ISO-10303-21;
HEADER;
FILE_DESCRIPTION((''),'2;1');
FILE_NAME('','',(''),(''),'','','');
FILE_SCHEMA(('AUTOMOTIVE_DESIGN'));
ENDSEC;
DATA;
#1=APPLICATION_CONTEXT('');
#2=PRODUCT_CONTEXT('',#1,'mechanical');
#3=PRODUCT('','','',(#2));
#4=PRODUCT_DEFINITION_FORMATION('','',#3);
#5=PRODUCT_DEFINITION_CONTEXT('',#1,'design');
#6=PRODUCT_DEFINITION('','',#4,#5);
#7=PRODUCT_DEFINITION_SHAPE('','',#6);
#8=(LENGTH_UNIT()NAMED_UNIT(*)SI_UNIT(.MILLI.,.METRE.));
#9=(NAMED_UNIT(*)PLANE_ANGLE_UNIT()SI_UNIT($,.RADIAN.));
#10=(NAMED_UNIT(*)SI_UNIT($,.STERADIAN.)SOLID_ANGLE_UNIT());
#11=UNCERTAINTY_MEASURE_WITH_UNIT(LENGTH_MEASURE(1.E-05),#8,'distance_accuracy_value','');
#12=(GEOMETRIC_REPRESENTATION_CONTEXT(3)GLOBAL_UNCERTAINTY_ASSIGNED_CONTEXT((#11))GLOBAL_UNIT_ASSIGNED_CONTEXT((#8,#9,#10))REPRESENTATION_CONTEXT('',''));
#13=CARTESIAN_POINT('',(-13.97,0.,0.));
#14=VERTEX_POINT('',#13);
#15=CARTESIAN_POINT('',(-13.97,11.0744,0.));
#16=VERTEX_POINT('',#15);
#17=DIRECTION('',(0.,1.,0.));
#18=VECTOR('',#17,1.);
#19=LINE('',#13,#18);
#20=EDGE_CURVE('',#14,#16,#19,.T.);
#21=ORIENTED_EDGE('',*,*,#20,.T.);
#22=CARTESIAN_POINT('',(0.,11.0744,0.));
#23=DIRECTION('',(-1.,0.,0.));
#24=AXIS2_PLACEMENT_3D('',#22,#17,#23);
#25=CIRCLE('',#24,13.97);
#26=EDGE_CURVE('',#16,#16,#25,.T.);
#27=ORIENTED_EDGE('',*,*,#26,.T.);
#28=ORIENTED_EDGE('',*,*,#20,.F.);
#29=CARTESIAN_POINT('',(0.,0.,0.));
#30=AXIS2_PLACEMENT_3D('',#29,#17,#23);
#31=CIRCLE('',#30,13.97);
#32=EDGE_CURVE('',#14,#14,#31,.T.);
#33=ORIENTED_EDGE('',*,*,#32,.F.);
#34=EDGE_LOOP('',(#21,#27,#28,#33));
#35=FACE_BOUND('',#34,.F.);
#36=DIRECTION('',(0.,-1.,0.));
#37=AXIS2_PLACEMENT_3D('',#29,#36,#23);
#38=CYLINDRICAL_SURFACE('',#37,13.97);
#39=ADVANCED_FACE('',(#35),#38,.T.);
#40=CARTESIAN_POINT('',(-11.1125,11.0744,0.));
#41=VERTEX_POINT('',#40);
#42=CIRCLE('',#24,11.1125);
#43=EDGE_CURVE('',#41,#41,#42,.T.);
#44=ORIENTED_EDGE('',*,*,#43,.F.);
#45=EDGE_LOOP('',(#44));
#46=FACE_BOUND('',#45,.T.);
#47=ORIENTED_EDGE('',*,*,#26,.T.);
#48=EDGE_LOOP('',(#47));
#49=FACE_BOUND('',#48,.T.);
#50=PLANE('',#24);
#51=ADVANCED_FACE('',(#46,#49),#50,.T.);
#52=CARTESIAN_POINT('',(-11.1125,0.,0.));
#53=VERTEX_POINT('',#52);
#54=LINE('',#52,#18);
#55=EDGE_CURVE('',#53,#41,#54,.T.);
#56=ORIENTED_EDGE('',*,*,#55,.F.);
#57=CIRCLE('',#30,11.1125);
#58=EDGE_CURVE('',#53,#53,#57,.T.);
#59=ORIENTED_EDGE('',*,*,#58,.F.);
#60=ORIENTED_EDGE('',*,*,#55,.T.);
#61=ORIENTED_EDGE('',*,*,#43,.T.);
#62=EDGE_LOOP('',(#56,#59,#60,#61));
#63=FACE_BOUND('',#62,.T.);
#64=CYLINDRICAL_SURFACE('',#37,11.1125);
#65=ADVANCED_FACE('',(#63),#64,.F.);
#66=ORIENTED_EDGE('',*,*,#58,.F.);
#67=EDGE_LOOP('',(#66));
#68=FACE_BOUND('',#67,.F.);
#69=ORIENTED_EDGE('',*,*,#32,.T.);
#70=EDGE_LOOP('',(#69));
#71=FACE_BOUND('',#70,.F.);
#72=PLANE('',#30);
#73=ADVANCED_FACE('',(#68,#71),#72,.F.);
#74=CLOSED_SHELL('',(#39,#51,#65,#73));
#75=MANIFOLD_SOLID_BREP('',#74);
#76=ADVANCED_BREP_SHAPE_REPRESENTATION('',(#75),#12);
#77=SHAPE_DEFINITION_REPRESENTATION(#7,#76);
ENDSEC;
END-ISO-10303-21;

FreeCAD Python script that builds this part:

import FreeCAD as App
import Part
import Sketcher
from FreeCAD import Vector
Q = App.Units.Quantity

doc = App.newDocument("Part")
params = doc.addObject("Spreadsheet::Sheet", "Params")
for row, (alias, value) in enumerate([
    ("sketch1_diameter", "1.1 in"),
    ("sketch1_diameter2", "0.875 in"),
    ("pad1_length", "0.436 in"),
], start=1):
    params.set(f"A{row}", alias)
    params.set(f"B{row}", "=" + value)
    params.setAlias(f"B{row}", alias)

body = doc.addObject("PartDesign::Body", "Body")

sketch1 = body.newObject("Sketcher::SketchObject", "Sketch")
sketch1.AttachmentSupport = (doc.getObject("XZ_Plane"), [""])
sketch1.MapMode = "FlatFace"
sketch1.addGeometry(Part.Circle(Vector(0, 0, 0), Vector(0, 0, 1), 14), False)
sketch1.addGeometry(Part.Circle(Vector(0, 0, 0), Vector(0, 0, 1), 11), False)
sketch1.addConstraint(Sketcher.Constraint("Coincident", 0, 3, -1, 1))
sketch1.addConstraint(Sketcher.Constraint("Coincident", 1, 3, -1, 1))
sketch1.addConstraint(Sketcher.Constraint("Diameter", 0, Q("1.1 in")))
sketch1.addConstraint(Sketcher.Constraint("Diameter", 1, Q("0.875 in")))
sketch1.setExpression("Constraints[2]", "Params.sketch1_diameter")
sketch1.setExpression("Constraints[3]", "Params.sketch1_diameter2")
pad1 = body.newObject("PartDesign::Pad", "Pad")
pad1.Profile = sketch1
pad1.setExpression("Length", "Params.pad1_length")
pad1.Reversed = True

doc.recompute()
